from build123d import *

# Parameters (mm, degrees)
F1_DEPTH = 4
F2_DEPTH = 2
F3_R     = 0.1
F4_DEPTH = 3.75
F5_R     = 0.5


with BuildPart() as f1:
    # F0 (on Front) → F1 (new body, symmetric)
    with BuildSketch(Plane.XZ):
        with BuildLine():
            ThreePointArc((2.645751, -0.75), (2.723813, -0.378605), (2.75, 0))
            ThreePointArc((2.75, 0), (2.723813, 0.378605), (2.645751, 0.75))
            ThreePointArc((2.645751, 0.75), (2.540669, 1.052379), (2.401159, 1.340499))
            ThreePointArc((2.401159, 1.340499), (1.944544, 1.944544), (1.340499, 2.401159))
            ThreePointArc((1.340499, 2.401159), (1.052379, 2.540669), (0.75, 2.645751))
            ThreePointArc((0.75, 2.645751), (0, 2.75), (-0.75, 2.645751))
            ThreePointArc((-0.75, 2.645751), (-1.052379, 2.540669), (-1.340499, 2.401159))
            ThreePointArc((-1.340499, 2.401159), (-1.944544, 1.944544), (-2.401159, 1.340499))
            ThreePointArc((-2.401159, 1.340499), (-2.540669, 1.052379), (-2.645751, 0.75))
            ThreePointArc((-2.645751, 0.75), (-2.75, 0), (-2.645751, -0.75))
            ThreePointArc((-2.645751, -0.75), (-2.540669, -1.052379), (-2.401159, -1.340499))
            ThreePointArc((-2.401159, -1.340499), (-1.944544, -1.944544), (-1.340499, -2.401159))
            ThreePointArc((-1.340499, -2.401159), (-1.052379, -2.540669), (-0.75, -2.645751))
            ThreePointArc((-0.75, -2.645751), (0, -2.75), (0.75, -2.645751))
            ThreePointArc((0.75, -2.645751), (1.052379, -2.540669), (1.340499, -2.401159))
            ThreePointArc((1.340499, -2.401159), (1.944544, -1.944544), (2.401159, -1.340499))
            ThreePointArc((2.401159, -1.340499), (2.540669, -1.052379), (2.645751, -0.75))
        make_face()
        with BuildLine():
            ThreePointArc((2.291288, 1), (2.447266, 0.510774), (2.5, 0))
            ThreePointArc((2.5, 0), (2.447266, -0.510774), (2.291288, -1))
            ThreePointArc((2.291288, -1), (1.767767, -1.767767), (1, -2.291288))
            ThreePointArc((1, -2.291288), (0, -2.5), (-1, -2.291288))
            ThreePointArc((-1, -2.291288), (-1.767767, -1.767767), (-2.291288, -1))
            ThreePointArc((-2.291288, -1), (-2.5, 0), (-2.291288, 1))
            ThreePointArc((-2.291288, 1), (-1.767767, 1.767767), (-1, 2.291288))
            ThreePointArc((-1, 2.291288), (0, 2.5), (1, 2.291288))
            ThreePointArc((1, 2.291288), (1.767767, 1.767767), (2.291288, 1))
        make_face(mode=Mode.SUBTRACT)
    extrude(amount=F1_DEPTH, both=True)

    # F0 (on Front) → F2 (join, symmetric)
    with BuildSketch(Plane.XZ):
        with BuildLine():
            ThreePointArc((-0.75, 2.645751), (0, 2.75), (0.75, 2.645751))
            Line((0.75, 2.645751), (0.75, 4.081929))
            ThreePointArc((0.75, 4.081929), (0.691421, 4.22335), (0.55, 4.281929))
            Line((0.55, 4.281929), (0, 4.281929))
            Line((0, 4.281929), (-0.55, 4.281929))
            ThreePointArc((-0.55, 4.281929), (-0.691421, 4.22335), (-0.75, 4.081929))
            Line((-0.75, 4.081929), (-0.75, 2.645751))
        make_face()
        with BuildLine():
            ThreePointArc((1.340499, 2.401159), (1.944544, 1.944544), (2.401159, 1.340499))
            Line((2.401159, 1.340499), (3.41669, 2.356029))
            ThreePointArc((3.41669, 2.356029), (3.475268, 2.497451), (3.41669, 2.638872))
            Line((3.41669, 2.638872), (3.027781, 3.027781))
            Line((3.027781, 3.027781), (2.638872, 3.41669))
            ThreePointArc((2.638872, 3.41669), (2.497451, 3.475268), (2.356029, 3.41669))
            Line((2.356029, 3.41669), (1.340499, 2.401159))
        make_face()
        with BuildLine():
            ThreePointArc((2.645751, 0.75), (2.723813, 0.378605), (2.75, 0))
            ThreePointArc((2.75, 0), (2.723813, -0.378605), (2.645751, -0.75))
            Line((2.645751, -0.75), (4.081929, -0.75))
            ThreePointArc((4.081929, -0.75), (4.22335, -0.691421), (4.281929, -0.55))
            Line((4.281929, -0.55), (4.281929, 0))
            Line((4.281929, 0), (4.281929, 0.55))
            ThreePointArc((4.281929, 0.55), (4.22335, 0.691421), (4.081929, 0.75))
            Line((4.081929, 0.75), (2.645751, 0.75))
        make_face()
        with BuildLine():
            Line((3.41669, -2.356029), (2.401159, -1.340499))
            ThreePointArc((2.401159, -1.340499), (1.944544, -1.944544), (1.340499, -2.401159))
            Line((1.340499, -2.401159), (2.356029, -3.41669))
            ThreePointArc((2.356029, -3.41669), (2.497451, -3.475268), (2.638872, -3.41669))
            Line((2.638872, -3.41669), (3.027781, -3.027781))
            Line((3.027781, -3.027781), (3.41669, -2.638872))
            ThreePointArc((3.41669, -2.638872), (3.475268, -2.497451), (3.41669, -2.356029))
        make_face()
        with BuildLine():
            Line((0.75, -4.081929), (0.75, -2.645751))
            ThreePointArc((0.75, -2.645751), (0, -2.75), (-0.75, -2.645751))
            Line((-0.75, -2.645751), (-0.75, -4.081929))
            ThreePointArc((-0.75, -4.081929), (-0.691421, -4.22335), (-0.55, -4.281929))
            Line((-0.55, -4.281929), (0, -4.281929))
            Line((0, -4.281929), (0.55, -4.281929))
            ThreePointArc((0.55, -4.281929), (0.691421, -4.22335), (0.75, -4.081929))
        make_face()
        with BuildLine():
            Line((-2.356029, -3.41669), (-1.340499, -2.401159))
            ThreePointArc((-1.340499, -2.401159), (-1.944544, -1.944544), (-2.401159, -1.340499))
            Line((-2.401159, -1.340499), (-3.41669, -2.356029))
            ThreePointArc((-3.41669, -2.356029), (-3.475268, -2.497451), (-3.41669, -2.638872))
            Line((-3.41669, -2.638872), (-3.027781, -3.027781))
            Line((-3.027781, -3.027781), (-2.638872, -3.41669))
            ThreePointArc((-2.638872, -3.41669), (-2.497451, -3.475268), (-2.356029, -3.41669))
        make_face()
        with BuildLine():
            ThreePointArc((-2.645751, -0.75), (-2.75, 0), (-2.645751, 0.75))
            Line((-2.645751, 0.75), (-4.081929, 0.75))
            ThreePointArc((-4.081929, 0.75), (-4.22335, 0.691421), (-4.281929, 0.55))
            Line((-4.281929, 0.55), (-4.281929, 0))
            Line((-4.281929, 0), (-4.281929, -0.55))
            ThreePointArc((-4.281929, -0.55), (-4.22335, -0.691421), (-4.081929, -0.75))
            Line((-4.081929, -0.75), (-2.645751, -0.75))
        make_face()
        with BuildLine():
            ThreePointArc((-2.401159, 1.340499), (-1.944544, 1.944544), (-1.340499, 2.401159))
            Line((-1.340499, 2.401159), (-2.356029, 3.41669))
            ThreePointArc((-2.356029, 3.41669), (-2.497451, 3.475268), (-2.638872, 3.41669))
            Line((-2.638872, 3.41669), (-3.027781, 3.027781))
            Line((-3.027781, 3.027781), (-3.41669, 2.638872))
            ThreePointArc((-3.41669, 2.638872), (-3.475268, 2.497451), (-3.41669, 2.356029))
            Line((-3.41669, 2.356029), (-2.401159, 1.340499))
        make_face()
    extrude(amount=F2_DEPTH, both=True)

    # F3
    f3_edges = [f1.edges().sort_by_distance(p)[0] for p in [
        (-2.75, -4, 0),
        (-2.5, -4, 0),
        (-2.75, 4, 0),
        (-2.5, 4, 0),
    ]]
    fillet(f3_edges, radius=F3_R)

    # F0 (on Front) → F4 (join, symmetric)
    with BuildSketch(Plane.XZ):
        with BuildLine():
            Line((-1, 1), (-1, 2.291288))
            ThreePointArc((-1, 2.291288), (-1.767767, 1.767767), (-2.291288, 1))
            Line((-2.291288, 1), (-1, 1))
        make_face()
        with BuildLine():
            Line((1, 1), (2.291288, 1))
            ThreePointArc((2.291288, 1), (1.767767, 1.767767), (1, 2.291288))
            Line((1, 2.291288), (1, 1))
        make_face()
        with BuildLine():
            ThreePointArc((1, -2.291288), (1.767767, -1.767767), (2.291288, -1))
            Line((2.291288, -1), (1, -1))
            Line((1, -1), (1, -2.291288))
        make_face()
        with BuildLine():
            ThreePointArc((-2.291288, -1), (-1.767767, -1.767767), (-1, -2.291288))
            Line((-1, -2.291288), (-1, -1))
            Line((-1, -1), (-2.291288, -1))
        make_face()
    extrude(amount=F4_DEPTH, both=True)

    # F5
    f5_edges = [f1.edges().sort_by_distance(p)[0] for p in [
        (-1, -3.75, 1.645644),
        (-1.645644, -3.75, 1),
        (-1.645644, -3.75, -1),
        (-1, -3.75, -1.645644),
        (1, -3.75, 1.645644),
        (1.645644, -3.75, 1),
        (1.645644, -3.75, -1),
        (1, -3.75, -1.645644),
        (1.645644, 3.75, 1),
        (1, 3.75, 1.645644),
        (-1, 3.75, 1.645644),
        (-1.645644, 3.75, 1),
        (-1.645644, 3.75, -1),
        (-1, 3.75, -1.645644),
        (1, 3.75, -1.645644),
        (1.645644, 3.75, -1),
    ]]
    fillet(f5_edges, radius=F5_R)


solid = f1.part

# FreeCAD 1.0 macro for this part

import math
import FreeCAD as App
import Part
import Sketcher
Q = App.Units.Quantity


def edges_at(feature, points):
    """Names of the edges that pass closest to the given points."""
    edges = feature.Shape.Edges
    near = lambda p: min(range(len(edges)), key=lambda i: edges[i].distToShape(Part.Vertex(*p))[0])
    return sorted({f"Edge{near(p) + 1}" for p in points})

doc = App.newDocument("Part")
body = doc.addObject("PartDesign::Body", "Body")

sketch1 = body.newObject("Sketcher::SketchObject", "Sketch")
sketch1.AttachmentSupport = (doc.getObject("XZ_Plane"), [""])
sketch1.MapMode = "FlatFace"
sketch1.addGeometry(Part.ArcOfCircle(Part.Circle(App.Vector(0, 0, 0), App.Vector(0, 0, 1), 2.8), math.radians(-15.83), math.radians(0)), False)
sketch1.addGeometry(Part.ArcOfCircle(Part.Circle(App.Vector(0, 0, 0), App.Vector(0, 0, 1), 2.8), math.radians(0), math.radians(15.83)), False)
sketch1.addGeometry(Part.ArcOfCircle(Part.Circle(App.Vector(0, 0, 0), App.Vector(0, 0, 1), 2.7), math.radians(15.83), math.radians(29.17)), False)
sketch1.addGeometry(Part.ArcOfCircle(Part.Circle(App.Vector(0, 0, 0), App.Vector(0, 0, 1), 2.7), math.radians(29), math.radians(61)), False)
sketch1.addGeometry(Part.ArcOfCircle(Part.Circle(App.Vector(0, 0, 0), App.Vector(0, 0, 1), 2.7), math.radians(60.83), math.radians(74.17)), False)
sketch1.addGeometry(Part.ArcOfCircle(Part.Circle(App.Vector(0, 0, 0), App.Vector(0, 0, 1), 2.7), math.radians(74), math.radians(106)), False)
sketch1.addGeometry(Part.ArcOfCircle(Part.Circle(App.Vector(0, 0, 0), App.Vector(0, 0, 1), 2.7), math.radians(105.83), math.radians(119.17)), False)
sketch1.addGeometry(Part.ArcOfCircle(Part.Circle(App.Vector(0, 0, 0), App.Vector(0, 0, 1), 2.7), math.radians(119), math.radians(151)), False)
sketch1.addGeometry(Part.ArcOfCircle(Part.Circle(App.Vector(0, 0, 0), App.Vector(0, 0, 1), 2.7), math.radians(150.83), math.radians(164.17)), False)
sketch1.addGeometry(Part.ArcOfCircle(Part.Circle(App.Vector(0, 0, 0), App.Vector(0, 0, 1), 2.7), math.radians(164), math.radians(196)), False)
sketch1.addGeometry(Part.ArcOfCircle(Part.Circle(App.Vector(0, 0, 0), App.Vector(0, 0, 1), 2.7), math.radians(-164.17), math.radians(-150.83)), False)
sketch1.addGeometry(Part.ArcOfCircle(Part.Circle(App.Vector(0, 0, 0), App.Vector(0, 0, 1), 2.7), math.radians(-151), math.radians(-119)), False)
sketch1.addGeometry(Part.ArcOfCircle(Part.Circle(App.Vector(0, 0, 0), App.Vector(0, 0, 1), 2.7), math.radians(-119.17), math.radians(-105.83)), False)
sketch1.addGeometry(Part.ArcOfCircle(Part.Circle(App.Vector(0, 0, 0), App.Vector(0, 0, 1), 2.7), math.radians(-106), math.radians(-74)), False)
sketch1.addGeometry(Part.ArcOfCircle(Part.Circle(App.Vector(0, 0, 0), App.Vector(0, 0, 1), 2.7), math.radians(-74.17), math.radians(-60.83)), False)
sketch1.addGeometry(Part.ArcOfCircle(Part.Circle(App.Vector(0, 0, 0), App.Vector(0, 0, 1), 2.7), math.radians(-61), math.radians(-29)), False)
sketch1.addGeometry(Part.ArcOfCircle(Part.Circle(App.Vector(0, 0, 0), App.Vector(0, 0, 1), 2.7), math.radians(-29.17), math.radians(-15.83)), False)
sketch1.addGeometry(Part.ArcOfCircle(Part.Circle(App.Vector(0, 0, 0), App.Vector(0, 0, 1), 2.5), math.radians(24), math.radians(66)), False)
sketch1.addGeometry(Part.ArcOfCircle(Part.Circle(App.Vector(0, 0, 0), App.Vector(0, 0, 1), 2.5), math.radians(0), math.radians(24)), False)
sketch1.addGeometry(Part.ArcOfCircle(Part.Circle(App.Vector(0, 0, 0), App.Vector(0, 0, 1), 2.5), math.radians(-24), math.radians(0)), False)
sketch1.addGeometry(Part.ArcOfCircle(Part.Circle(App.Vector(0, 0, 0), App.Vector(0, 0, 1), 2.5), math.radians(-66), math.radians(-24)), False)
sketch1.addGeometry(Part.ArcOfCircle(Part.Circle(App.Vector(0, 0, 0), App.Vector(0, 0, 1), 2.5), math.radians(-114), math.radians(-66)), False)
sketch1.addGeometry(Part.ArcOfCircle(Part.Circle(App.Vector(0, 0, 0), App.Vector(0, 0, 1), 2.5), math.radians(-156), math.radians(-114)), False)
sketch1.addGeometry(Part.ArcOfCircle(Part.Circle(App.Vector(0, 0, 0), App.Vector(0, 0, 1), 2.5), math.radians(156), math.radians(204)), False)
sketch1.addGeometry(Part.ArcOfCircle(Part.Circle(App.Vector(0, 0, 0), App.Vector(0, 0, 1), 2.5), math.radians(114), math.radians(156)), False)
sketch1.addGeometry(Part.ArcOfCircle(Part.Circle(App.Vector(0, 0, 0), App.Vector(0, 0, 1), 2.5), math.radians(66), math.radians(114)), False)
sketch1.addConstraint(Sketcher.Constraint("Tangent", 0, 2, 1, 1))
sketch1.addConstraint(Sketcher.Constraint("Tangent", 1, 2, 2, 1))
sketch1.addConstraint(Sketcher.Constraint("Tangent", 2, 2, 3, 1))
sketch1.addConstraint(Sketcher.Constraint("Tangent", 3, 2, 4, 1))
sketch1.addConstraint(Sketcher.Constraint("Coincident", 4, 2, 5, 1))
sketch1.addConstraint(Sketcher.Constraint("Coincident", 5, 2, 6, 1))
sketch1.addConstraint(Sketcher.Constraint("Tangent", 6, 2, 7, 1))
sketch1.addConstraint(Sketcher.Constraint("Tangent", 7, 2, 8, 1))
sketch1.addConstraint(Sketcher.Constraint("Coincident", 8, 2, 9, 1))
sketch1.addConstraint(Sketcher.Constraint("Coincident", 9, 2, 10, 1))
sketch1.addConstraint(Sketcher.Constraint("Tangent", 10, 2, 11, 1))
sketch1.addConstraint(Sketcher.Constraint("Tangent", 11, 2, 12, 1))
sketch1.addConstraint(Sketcher.Constraint("Coincident", 12, 2, 13, 1))
sketch1.addConstraint(Sketcher.Constraint("Coincident", 13, 2, 14, 1))
sketch1.addConstraint(Sketcher.Constraint("Tangent", 14, 2, 15, 1))
sketch1.addConstraint(Sketcher.Constraint("Tangent", 15, 2, 16, 1))
sketch1.addConstraint(Sketcher.Constraint("Tangent", 16, 2, 0, 1))
sketch1.addConstraint(Sketcher.Constraint("Tangent", 17, 1, 18, 2))
sketch1.addConstraint(Sketcher.Constraint("Tangent", 18, 1, 19, 2))
sketch1.addConstraint(Sketcher.Constraint("Tangent", 19, 1, 20, 2))
sketch1.addConstraint(Sketcher.Constraint("Tangent", 20, 1, 21, 2))
sketch1.addConstraint(Sketcher.Constraint("Tangent", 21, 1, 22, 2))
sketch1.addConstraint(Sketcher.Constraint("Tangent", 22, 1, 23, 2))
sketch1.addConstraint(Sketcher.Constraint("Tangent", 23, 1, 24, 2))
sketch1.addConstraint(Sketcher.Constraint("Tangent", 24, 1, 25, 2))
sketch1.addConstraint(Sketcher.Constraint("Tangent", 25, 1, 17, 2))
sketch1.addConstraint(Sketcher.Constraint("Coincident", 0, 3, -1, 1))
sketch1.addConstraint(Sketcher.Constraint("Coincident", 2, 3, -1, 1))
sketch1.addConstraint(Sketcher.Constraint("Coincident", 4, 3, -1, 1))
sketch1.addConstraint(Sketcher.Constraint("Coincident", 5, 3, -1, 1))
sketch1.addConstraint(Sketcher.Constraint("Coincident", 6, 3, -1, 1))
sketch1.addConstraint(Sketcher.Constraint("Coincident", 8, 3, -1, 1))
sketch1.addConstraint(Sketcher.Constraint("Coincident", 9, 3, -1, 1))
sketch1.addConstraint(Sketcher.Constraint("Coincident", 10, 3, -1, 1))
sketch1.addConstraint(Sketcher.Constraint("Coincident", 12, 3, -1, 1))
sketch1.addConstraint(Sketcher.Constraint("Coincident", 13, 3, -1, 1))
sketch1.addConstraint(Sketcher.Constraint("Coincident", 14, 3, -1, 1))
sketch1.addConstraint(Sketcher.Constraint("Coincident", 17, 3, -1, 1))
sketch1.addConstraint(Sketcher.Constraint("Coincident", 19, 3, -1, 1))
sketch1.addConstraint(Sketcher.Constraint("Coincident", 21, 3, -1, 1))
sketch1.addConstraint(Sketcher.Constraint("Coincident", 23, 3, -1, 1))
sketch1.addConstraint(Sketcher.Constraint("PointOnObject", 0, 2, -1))
sketch1.addConstraint(Sketcher.Constraint("PointOnObject", 18, 1, -1))
sketch1.addConstraint(Sketcher.Constraint("Horizontal", 4, 2, 5, 2))
sketch1.addConstraint(Sketcher.Constraint("Horizontal", 3, 2, 6, 2))
sketch1.addConstraint(Sketcher.Constraint("Horizontal", 2, 2, 7, 2))
sketch1.addConstraint(Sketcher.Constraint("Horizontal", 1, 2, 8, 2))
sketch1.addConstraint(Sketcher.Constraint("Horizontal", 12, 2, 13, 2))
sketch1.addConstraint(Sketcher.Constraint("Horizontal", 11, 2, 14, 2))
sketch1.addConstraint(Sketcher.Constraint("Horizontal", 10, 2, 15, 2))
sketch1.addConstraint(Sketcher.Constraint("Horizontal", 9, 2, 16, 2))
sketch1.addConstraint(Sketcher.Constraint("Horizontal", 20, 1, 21, 1))
sketch1.addConstraint(Sketcher.Constraint("Horizontal", 19, 1, 22, 1))
sketch1.addConstraint(Sketcher.Constraint("Horizontal", 17, 1, 23, 1))
sketch1.addConstraint(Sketcher.Constraint("Horizontal", 24, 1, 25, 1))
sketch1.addConstraint(Sketcher.Constraint("Vertical", 8, 2, 9, 2))
sketch1.addConstraint(Sketcher.Constraint("Vertical", 7, 2, 10, 2))
sketch1.addConstraint(Sketcher.Constraint("Vertical", 6, 2, 11, 2))
sketch1.addConstraint(Sketcher.Constraint("Vertical", 5, 2, 12, 2))
sketch1.addConstraint(Sketcher.Constraint("Vertical", 17, 1, 19, 1))
sketch1.addConstraint(Sketcher.Constraint("Vertical", 21, 1, 24, 1))
sketch1.addConstraint(Sketcher.Constraint("Radius", 17, Q("2.500001 mm")))
sketch1.addConstraint(Sketcher.Constraint("DistanceY", -1, 1, 17, 1, Q("1 mm")))
sketch1.addConstraint(Sketcher.Constraint("DistanceX", -1, 1, 20, 1, Q("1 mm")))
sketch1.addConstraint(Sketcher.Constraint("DistanceX", 5, 2, 4, 2, Q("1.5 mm")))
sketch1.addConstraint(Sketcher.Constraint("DistanceY", 9, 2, 8, 2, Q("1.5 mm")))
sketch1.addConstraint(Sketcher.Constraint("DistanceX", -1, 1, 0, 2, Q("2.75 mm")))
sketch1.addConstraint(Sketcher.Constraint("DistanceX", 6, 2, 3, 2, Q("2.680998 mm")))
sketch1.addConstraint(Sketcher.Constraint("DistanceY", 10, 2, 7, 2, Q("2.680998 mm")))
pad1 = body.newObject("PartDesign::Pad", "Pad")
pad1.Profile = sketch1
pad1.Length = 8
pad1.Midplane = True

sketch2 = body.newObject("Sketcher::SketchObject", "Sketch001")
sketch2.AttachmentSupport = (doc.getObject("XZ_Plane"), [""])
sketch2.MapMode = "FlatFace"
sketch2.addGeometry(Part.ArcOfCircle(Part.Circle(App.Vector(0, 0, 0), App.Vector(0, 0, 1), 2.75), math.radians(74), math.radians(106)), False)
sketch2.addGeometry(Part.LineSegment(App.Vector(0.75, 2.65, 0), App.Vector(0.75, 4.08, 0)), False)
sketch2.addGeometry(Part.ArcOfCircle(Part.Circle(App.Vector(0.55, 4.08, 0), App.Vector(0, 0, 1), 0.2), math.radians(0), math.radians(90)), False)
sketch2.addGeometry(Part.LineSegment(App.Vector(0.55, 4.28, 0), App.Vector(-0.55, 4.28, 0)), False)
sketch2.addGeometry(Part.ArcOfCircle(Part.Circle(App.Vector(-0.55, 4.08, 0), App.Vector(0, 0, 1), 0.2), math.radians(90), math.radians(180)), False)
sketch2.addGeometry(Part.LineSegment(App.Vector(-0.75, 4.08, 0), App.Vector(-0.75, 2.65, 0)), False)
sketch2.addGeometry(Part.ArcOfCircle(Part.Circle(App.Vector(0, 0, 0), App.Vector(0, 0, 1), 2.75), math.radians(29), math.radians(61)), False)
sketch2.addGeometry(Part.LineSegment(App.Vector(2.4, 1.34, 0), App.Vector(3.42, 2.36, 0)), False)
sketch2.addGeometry(Part.ArcOfCircle(Part.Circle(App.Vector(3.28, 2.5, 0), App.Vector(0, 0, 1), 0.2), math.radians(-45), math.radians(45)), False)
sketch2.addGeometry(Part.LineSegment(App.Vector(3.42, 2.64, 0), App.Vector(2.64, 3.42, 0)), False)
sketch2.addGeometry(Part.ArcOfCircle(Part.Circle(App.Vector(2.5, 3.28, 0), App.Vector(0, 0, 1), 0.2), math.radians(45), math.radians(135)), False)
sketch2.addGeometry(Part.LineSegment(App.Vector(2.36, 3.42, 0), App.Vector(1.34, 2.4, 0)), False)
sketch2.addGeometry(Part.ArcOfCircle(Part.Circle(App.Vector(0, 0, 0), App.Vector(0, 0, 1), 2.75), math.radians(0), math.radians(15.83)), False)
sketch2.addGeometry(Part.ArcOfCircle(Part.Circle(App.Vector(0, 0, 0), App.Vector(0, 0, 1), 2.75), math.radians(-15.83), math.radians(0)), False)
sketch2.addGeometry(Part.LineSegment(App.Vector(2.65, -0.75, 0), App.Vector(4.08, -0.75, 0)), False)
sketch2.addGeometry(Part.ArcOfCircle(Part.Circle(App.Vector(4.08, -0.55, 0), App.Vector(0, 0, 1), 0.2), math.radians(-90), math.radians(0)), False)
sketch2.addGeometry(Part.LineSegment(App.Vector(4.28, -0.55, 0), App.Vector(4.28, 0.55, 0)), False)
sketch2.addGeometry(Part.ArcOfCircle(Part.Circle(App.Vector(4.08, 0.55, 0), App.Vector(0, 0, 1), 0.2), math.radians(0), math.radians(90)), False)
sketch2.addGeometry(Part.LineSegment(App.Vector(4.08, 0.75, 0), App.Vector(2.65, 0.75, 0)), False)
sketch2.addGeometry(Part.LineSegment(App.Vector(3.42, -2.36, 0), App.Vector(2.4, -1.34, 0)), False)
sketch2.addGeometry(Part.ArcOfCircle(Part.Circle(App.Vector(0, 0, 0), App.Vector(0, 0, 1), 2.75), math.radians(-61), math.radians(-29)), False)
sketch2.addGeometry(Part.LineSegment(App.Vector(1.34, -2.4, 0), App.Vector(2.36, -3.42, 0)), False)
sketch2.addGeometry(Part.ArcOfCircle(Part.Circle(App.Vector(2.5, -3.28, 0), App.Vector(0, 0, 1), 0.2), math.radians(-135), math.radians(-45)), False)
sketch2.addGeometry(Part.LineSegment(App.Vector(2.64, -3.42, 0), App.Vector(3.42, -2.64, 0)), False)
sketch2.addGeometry(Part.ArcOfCircle(Part.Circle(App.Vector(3.28, -2.5, 0), App.Vector(0, 0, 1), 0.2), math.radians(-45), math.radians(45)), False)
sketch2.addGeometry(Part.LineSegment(App.Vector(0.75, -4.08, 0), App.Vector(0.75, -2.65, 0)), False)
sketch2.addGeometry(Part.ArcOfCircle(Part.Circle(App.Vector(0, 0, 0), App.Vector(0, 0, 1), 2.75), math.radians(-106), math.radians(-74)), False)
sketch2.addGeometry(Part.LineSegment(App.Vector(-0.75, -2.65, 0), App.Vector(-0.75, -4.08, 0)), False)
sketch2.addGeometry(Part.ArcOfCircle(Part.Circle(App.Vector(-0.55, -4.08, 0), App.Vector(0, 0, 1), 0.2), math.radians(-180), math.radians(-90)), False)
sketch2.addGeometry(Part.LineSegment(App.Vector(-0.55, -4.28, 0), App.Vector(0.55, -4.28, 0)), False)
sketch2.addGeometry(Part.ArcOfCircle(Part.Circle(App.Vector(0.55, -4.08, 0), App.Vector(0, 0, 1), 0.2), math.radians(-90), math.radians(0)), False)
sketch2.addGeometry(Part.LineSegment(App.Vector(-2.36, -3.42, 0), App.Vector(-1.34, -2.4, 0)), False)
sketch2.addGeometry(Part.ArcOfCircle(Part.Circle(App.Vector(0, 0, 0), App.Vector(0, 0, 1), 2.75), math.radians(-151), math.radians(-119)), False)
sketch2.addGeometry(Part.LineSegment(App.Vector(-2.4, -1.34, 0), App.Vector(-3.42, -2.36, 0)), False)
sketch2.addGeometry(Part.ArcOfCircle(Part.Circle(App.Vector(-3.28, -2.5, 0), App.Vector(0, 0, 1), 0.2), math.radians(135), math.radians(225)), False)
sketch2.addGeometry(Part.LineSegment(App.Vector(-3.42, -2.64, 0), App.Vector(-2.64, -3.42, 0)), False)
sketch2.addGeometry(Part.ArcOfCircle(Part.Circle(App.Vector(-2.5, -3.28, 0), App.Vector(0, 0, 1), 0.2), math.radians(-135), math.radians(-45)), False)
sketch2.addGeometry(Part.ArcOfCircle(Part.Circle(App.Vector(0, 0, 0), App.Vector(0, 0, 1), 2.75), math.radians(164), math.radians(196)), False)
sketch2.addGeometry(Part.LineSegment(App.Vector(-2.65, 0.75, 0), App.Vector(-4.08, 0.75, 0)), False)
sketch2.addGeometry(Part.ArcOfCircle(Part.Circle(App.Vector(-4.08, 0.55, 0), App.Vector(0, 0, 1), 0.2), math.radians(90), math.radians(180)), False)
sketch2.addGeometry(Part.LineSegment(App.Vector(-4.28, 0.55, 0), App.Vector(-4.28, -0.55, 0)), False)
sketch2.addGeometry(Part.ArcOfCircle(Part.Circle(App.Vector(-4.08, -0.55, 0), App.Vector(0, 0, 1), 0.2), math.radians(-180), math.radians(-90)), False)
sketch2.addGeometry(Part.LineSegment(App.Vector(-4.08, -0.75, 0), App.Vector(-2.65, -0.75, 0)), False)
sketch2.addGeometry(Part.ArcOfCircle(Part.Circle(App.Vector(0, 0, 0), App.Vector(0, 0, 1), 2.75), math.radians(119), math.radians(151)), False)
sketch2.addGeometry(Part.LineSegment(App.Vector(-1.34, 2.4, 0), App.Vector(-2.36, 3.42, 0)), False)
sketch2.addGeometry(Part.ArcOfCircle(Part.Circle(App.Vector(-2.5, 3.28, 0), App.Vector(0, 0, 1), 0.2), math.radians(45), math.radians(135)), False)
sketch2.addGeometry(Part.LineSegment(App.Vector(-2.64, 3.42, 0), App.Vector(-3.42, 2.64, 0)), False)
sketch2.addGeometry(Part.ArcOfCircle(Part.Circle(App.Vector(-3.28, 2.5, 0), App.Vector(0, 0, 1), 0.2), math.radians(135), math.radians(225)), False)
sketch2.addGeometry(Part.LineSegment(App.Vector(-3.42, 2.36, 0), App.Vector(-2.4, 1.34, 0)), False)
sketch2.addConstraint(Sketcher.Constraint("Coincident", 0, 1, 1, 1))
sketch2.addConstraint(Sketcher.Constraint("Coincident", 1, 2, 2, 1))
sketch2.addConstraint(Sketcher.Constraint("Coincident", 2, 2, 3, 1))
sketch2.addConstraint(Sketcher.Constraint("Coincident", 3, 2, 4, 1))
sketch2.addConstraint(Sketcher.Constraint("Coincident", 4, 2, 5, 1))
sketch2.addConstraint(Sketcher.Constraint("Coincident", 5, 2, 0, 2))
sketch2.addConstraint(Sketcher.Constraint("Coincident", 6, 1, 7, 1))
sketch2.addConstraint(Sketcher.Constraint("Coincident", 7, 2, 8, 1))
sketch2.addConstraint(Sketcher.Constraint("Coincident", 8, 2, 9, 1))
sketch2.addConstraint(Sketcher.Constraint("Coincident", 9, 2, 10, 1))
sketch2.addConstraint(Sketcher.Constraint("Coincident", 10, 2, 11, 1))
sketch2.addConstraint(Sketcher.Constraint("Coincident", 11, 2, 6, 2))
sketch2.addConstraint(Sketcher.Constraint("Tangent", 12, 1, 13, 2))
sketch2.addConstraint(Sketcher.Constraint("Coincident", 13, 1, 14, 1))
sketch2.addConstraint(Sketcher.Constraint("Coincident", 14, 2, 15, 1))
sketch2.addConstraint(Sketcher.Constraint("Coincident", 15, 2, 16, 1))
sketch2.addConstraint(Sketcher.Constraint("Coincident", 16, 2, 17, 1))
sketch2.addConstraint(Sketcher.Constraint("Coincident", 17, 2, 18, 1))
sketch2.addConstraint(Sketcher.Constraint("Coincident", 18, 2, 12, 2))
sketch2.addConstraint(Sketcher.Constraint("Coincident", 19, 2, 20, 2))
sketch2.addConstraint(Sketcher.Constraint("Coincident", 20, 1, 21, 1))
sketch2.addConstraint(Sketcher.Constraint("Coincident", 21, 2, 22, 1))
sketch2.addConstraint(Sketcher.Constraint("Coincident", 22, 2, 23, 1))
sketch2.addConstraint(Sketcher.Constraint("Coincident", 23, 2, 24, 1))
sketch2.addConstraint(Sketcher.Constraint("Coincident", 24, 2, 19, 1))
sketch2.addConstraint(Sketcher.Constraint("Coincident", 25, 2, 26, 2))
sketch2.addConstraint(Sketcher.Constraint("Coincident", 26, 1, 27, 1))
sketch2.addConstraint(Sketcher.Constraint("Coincident", 27, 2, 28, 1))
sketch2.addConstraint(Sketcher.Constraint("Coincident", 28, 2, 29, 1))
sketch2.addConstraint(Sketcher.Constraint("Coincident", 29, 2, 30, 1))
sketch2.addConstraint(Sketcher.Constraint("Coincident", 30, 2, 25, 1))
sketch2.addConstraint(Sketcher.Constraint("Coincident", 31, 2, 32, 2))
sketch2.addConstraint(Sketcher.Constraint("Coincident", 32, 1, 33, 1))
sketch2.addConstraint(Sketcher.Constraint("Coincident", 33, 2, 34, 1))
sketch2.addConstraint(Sketcher.Constraint("Coincident", 34, 2, 35, 1))
sketch2.addConstraint(Sketcher.Constraint("Coincident", 35, 2, 36, 1))
sketch2.addConstraint(Sketcher.Constraint("Coincident", 36, 2, 31, 1))
sketch2.addConstraint(Sketcher.Constraint("Coincident", 37, 1, 38, 1))
sketch2.addConstraint(Sketcher.Constraint("Coincident", 38, 2, 39, 1))
sketch2.addConstraint(Sketcher.Constraint("Coincident", 39, 2, 40, 1))
sketch2.addConstraint(Sketcher.Constraint("Coincident", 40, 2, 41, 1))
sketch2.addConstraint(Sketcher.Constraint("Coincident", 41, 2, 42, 1))
sketch2.addConstraint(Sketcher.Constraint("Coincident", 42, 2, 37, 2))
sketch2.addConstraint(Sketcher.Constraint("Coincident", 43, 1, 44, 1))
sketch2.addConstraint(Sketcher.Constraint("Coincident", 44, 2, 45, 1))
sketch2.addConstraint(Sketcher.Constraint("Coincident", 45, 2, 46, 1))
sketch2.addConstraint(Sketcher.Constraint("Coincident", 46, 2, 47, 1))
sketch2.addConstraint(Sketcher.Constraint("Coincident", 47, 2, 48, 1))
sketch2.addConstraint(Sketcher.Constraint("Coincident", 48, 2, 43, 2))
sketch2.addConstraint(Sketcher.Constraint("Vertical", 1))
sketch2.addConstraint(Sketcher.Constraint("Horizontal", 3))
sketch2.addConstraint(Sketcher.Constraint("Vertical", 5))
sketch2.addConstraint(Sketcher.Constraint("Horizontal", 14))
sketch2.addConstraint(Sketcher.Constraint("Vertical", 16))
sketch2.addConstraint(Sketcher.Constraint("Horizontal", 18))
sketch2.addConstraint(Sketcher.Constraint("Vertical", 25))
sketch2.addConstraint(Sketcher.Constraint("Vertical", 27))
sketch2.addConstraint(Sketcher.Constraint("Horizontal", 29))
sketch2.addConstraint(Sketcher.Constraint("Horizontal", 38))
sketch2.addConstraint(Sketcher.Constraint("Vertical", 40))
sketch2.addConstraint(Sketcher.Constraint("Horizontal", 42))
sketch2.addConstraint(Sketcher.Constraint("Coincident", 0, 3, -1, 1))
sketch2.addConstraint(Sketcher.Constraint("Coincident", 6, 3, -1, 1))
sketch2.addConstraint(Sketcher.Constraint("Coincident", 12, 3, -1, 1))
sketch2.addConstraint(Sketcher.Constraint("Coincident", 20, 3, -1, 1))
sketch2.addConstraint(Sketcher.Constraint("Coincident", 26, 3, -1, 1))
sketch2.addConstraint(Sketcher.Constraint("Coincident", 32, 3, -1, 1))
sketch2.addConstraint(Sketcher.Constraint("Coincident", 37, 3, -1, 1))
sketch2.addConstraint(Sketcher.Constraint("Coincident", 43, 3, -1, 1))
sketch2.addConstraint(Sketcher.Constraint("Equal", 2, 4))
sketch2.addConstraint(Sketcher.Constraint("Equal", 4, 8))
sketch2.addConstraint(Sketcher.Constraint("Equal", 8, 10))
sketch2.addConstraint(Sketcher.Constraint("Equal", 12, 13))
sketch2.addConstraint(Sketcher.Constraint("Equal", 10, 15))
sketch2.addConstraint(Sketcher.Constraint("Equal", 15, 17))
sketch2.addConstraint(Sketcher.Constraint("Equal", 6, 20))
sketch2.addConstraint(Sketcher.Constraint("Equal", 17, 22))
sketch2.addConstraint(Sketcher.Constraint("Equal", 22, 24))
sketch2.addConstraint(Sketcher.Constraint("Equal", 0, 26))
sketch2.addConstraint(Sketcher.Constraint("Equal", 24, 28))
sketch2.addConstraint(Sketcher.Constraint("Equal", 28, 30))
sketch2.addConstraint(Sketcher.Constraint("Equal", 20, 32))
sketch2.addConstraint(Sketcher.Constraint("Equal", 30, 34))
sketch2.addConstraint(Sketcher.Constraint("Equal", 34, 36))
sketch2.addConstraint(Sketcher.Constraint("Equal", 26, 37))
sketch2.addConstraint(Sketcher.Constraint("Equal", 36, 39))
sketch2.addConstraint(Sketcher.Constraint("Equal", 39, 41))
sketch2.addConstraint(Sketcher.Constraint("Equal", 32, 43))
sketch2.addConstraint(Sketcher.Constraint("Equal", 41, 45))
sketch2.addConstraint(Sketcher.Constraint("Equal", 45, 47))
sketch2.addConstraint(Sketcher.Constraint("Symmetric", 2, 3, 28, 3, -1, 1))
sketch2.addConstraint(Sketcher.Constraint("Symmetric", 8, 3, 34, 3, -1, 1))
sketch2.addConstraint(Sketcher.Constraint("Symmetric", 10, 3, 36, 3, -1, 1))
sketch2.addConstraint(Sketcher.Constraint("Symmetric", 15, 3, 39, 3, -1, 1))
sketch2.addConstraint(Sketcher.Constraint("Symmetric", 22, 3, 45, 3, -1, 1))
sketch2.addConstraint(Sketcher.Constraint("Symmetric", 24, 3, 47, 3, -1, 1))
sketch2.addConstraint(Sketcher.Constraint("Symmetric", 4, 2, 30, 2, -1, 1))
sketch2.addConstraint(Sketcher.Constraint("Symmetric", 17, 2, 41, 2, -1, 1))
sketch2.addConstraint(Sketcher.Constraint("Symmetric", 24, 3, 34, 3, -2))
sketch2.addConstraint(Sketcher.Constraint("Symmetric", 22, 3, 36, 3, -2))
sketch2.addConstraint(Sketcher.Constraint("Symmetric", 1, 2, 4, 2, -2))
sketch2.addConstraint(Sketcher.Constraint("Symmetric", 18, 2, 37, 1, -2))
sketch2.addConstraint(Sketcher.Constraint("PointOnObject", 12, 1, -1))
sketch2.addConstraint(Sketcher.Constraint("Perpendicular", 7, 9))
sketch2.addConstraint(Sketcher.Constraint("Perpendicular", 9, 11))
sketch2.addConstraint(Sketcher.Constraint("Perpendicular", 11, 19))
sketch2.addConstraint(Sketcher.Constraint("Parallel", 19, 21))
sketch2.addConstraint(Sketcher.Constraint("Perpendicular", 21, 23))
sketch2.addConstraint(Sketcher.Constraint("Parallel", 23, 31))
sketch2.addConstraint(Sketcher.Constraint("Parallel", 31, 33))
sketch2.addConstraint(Sketcher.Constraint("Parallel", 35, 44))
sketch2.addConstraint(Sketcher.Constraint("Perpendicular", 46, 48))
sketch2.addConstraint(Sketcher.Constraint("Horizontal", 4, 3, 1, 2))
sketch2.addConstraint(Sketcher.Constraint("Horizontal", 9, 2, 10, 2))
sketch2.addConstraint(Sketcher.Constraint("Horizontal", 41, 3, 15, 2))
sketch2.addConstraint(Sketcher.Constraint("Horizontal", 39, 3, 16, 2))
sketch2.addConstraint(Sketcher.Constraint("Horizontal", 21, 2, 22, 2))
sketch2.addConstraint(Sketcher.Constraint("Horizontal", 30, 3, 27, 2))
sketch2.addConstraint(Sketcher.Constraint("Horizontal", 24, 2, 33, 2))
sketch2.addConstraint(Sketcher.Constraint("Horizontal", 23, 2, 34, 2))
sketch2.addConstraint(Sketcher.Constraint("Horizontal", 22, 2, 35, 2))
sketch2.addConstraint(Sketcher.Constraint("Horizontal", 35, 2, 36, 2))
sketch2.addConstraint(Sketcher.Constraint("Horizontal", 16, 2, 39, 2))
sketch2.addConstraint(Sketcher.Constraint("Horizontal", 15, 2, 40, 2))
sketch2.addConstraint(Sketcher.Constraint("Horizontal", 10, 2, 44, 2))
sketch2.addConstraint(Sketcher.Constraint("Horizontal", 44, 2, 45, 2))
sketch2.addConstraint(Sketcher.Constraint("Horizontal", 8, 2, 46, 2))
sketch2.addConstraint(Sketcher.Constraint("Horizontal", 7, 2, 47, 2))
sketch2.addConstraint(Sketcher.Constraint("Vertical", 30, 3, 2, 2))
sketch2.addConstraint(Sketcher.Constraint("Vertical", 28, 3, 3, 2))
sketch2.addConstraint(Sketcher.Constraint("Vertical", 7, 2, 8, 2))
sketch2.addConstraint(Sketcher.Constraint("Vertical", 17, 3, 14, 2))
sketch2.addConstraint(Sketcher.Constraint("Vertical", 14, 2, 17, 2))
sketch2.addConstraint(Sketcher.Constraint("Vertical", 10, 2, 21, 2))
sketch2.addConstraint(Sketcher.Constraint("Vertical", 8, 2, 23, 2))
sketch2.addConstraint(Sketcher.Constraint("Vertical", 23, 2, 24, 2))
sketch2.addConstraint(Sketcher.Constraint("Vertical", 3, 2, 28, 2))
sketch2.addConstraint(Sketcher.Constraint("Vertical", 2, 2, 29, 2))
sketch2.addConstraint(Sketcher.Constraint("Vertical", 41, 3, 38, 2))
sketch2.addConstraint(Sketcher.Constraint("Equal", 42, 1))
sketch2.addConstraint(Sketcher.Constraint("Equal", 29, 16))
sketch2.addConstraint(Sketcher.Constraint("Equal", 7, 11))
sketch2.addConstraint(Sketcher.Constraint("Radius", 2, Q("0.200001 mm")))
sketch2.addConstraint(Sketcher.Constraint("DistanceX", 3, 2, 3, 1, Q("1.1 mm")))
sketch2.addConstraint(Sketcher.Constraint("Distance", 9, Q("1.100001 mm")))
sketch2.addConstraint(Sketcher.Constraint("DistanceX", -1, 1, 12, 1, Q("2.75 mm")))
sketch2.addConstraint(Sketcher.Constraint("Radius", 6, Q("2.749998 mm")))
sketch2.addConstraint(Sketcher.Constraint("DistanceY", -1, 1, 6, 1, Q("1.340499 mm")))
sketch2.addConstraint(Sketcher.Constraint("DistanceX", -1, 1, 11, 2, Q("1.340499 mm")))
sketch2.addConstraint(Sketcher.Constraint("DistanceX", 14, 1, 14, 2, Q("1.436178 mm")))
sketch2.addConstraint(Sketcher.Constraint("DistanceY", -1, 1, 8, 3, Q("2.49745 mm")))
pad2 = body.newObject("PartDesign::Pad", "Pad001")
pad2.Profile = sketch2
pad2.Length = 4
pad2.Midplane = True
doc.recompute()

fillet = body.newObject("PartDesign::Fillet", "Fillet")
fillet.Base = (pad2, edges_at(pad2, [
    (-2.75, -4, 0),
    (-2.5, -4, 0),
    (-2.75, 4, 0),
    (-2.5, 4, 0),
]))
fillet.Radius = 0.1

sketch3 = body.newObject("Sketcher::SketchObject", "Sketch002")
sketch3.AttachmentSupport = (doc.getObject("XZ_Plane"), [""])
sketch3.MapMode = "FlatFace"
sketch3.addGeometry(Part.LineSegment(App.Vector(-1, 1, 0), App.Vector(-1, 2.3, 0)), False)
sketch3.addGeometry(Part.ArcOfCircle(Part.Circle(App.Vector(0, 0, 0), App.Vector(0, 0, 1), 2.5), math.radians(114), math.radians(156)), False)
sketch3.addGeometry(Part.LineSegment(App.Vector(-2.3, 1, 0), App.Vector(-1, 1, 0)), False)
sketch3.addGeometry(Part.LineSegment(App.Vector(1, 1, 0), App.Vector(2.3, 1, 0)), False)
sketch3.addGeometry(Part.ArcOfCircle(Part.Circle(App.Vector(0, 0, 0), App.Vector(0, 0, 1), 2.5), math.radians(24), math.radians(66)), False)
sketch3.addGeometry(Part.LineSegment(App.Vector(1, 2.3, 0), App.Vector(1, 1, 0)), False)
sketch3.addGeometry(Part.ArcOfCircle(Part.Circle(App.Vector(0, 0, 0), App.Vector(0, 0, 1), 2.5), math.radians(-66), math.radians(-24)), False)
sketch3.addGeometry(Part.LineSegment(App.Vector(2.3, -1, 0), App.Vector(1, -1, 0)), False)
sketch3.addGeometry(Part.LineSegment(App.Vector(1, -1, 0), App.Vector(1, -2.3, 0)), False)
sketch3.addGeometry(Part.ArcOfCircle(Part.Circle(App.Vector(0, 0, 0), App.Vector(0, 0, 1), 2.5), math.radians(-156), math.radians(-114)), False)
sketch3.addGeometry(Part.LineSegment(App.Vector(-1, -2.3, 0), App.Vector(-1, -1, 0)), False)
sketch3.addGeometry(Part.LineSegment(App.Vector(-1, -1, 0), App.Vector(-2.3, -1, 0)), False)
sketch3.addConstraint(Sketcher.Constraint("Coincident", 0, 2, 1, 1))
sketch3.addConstraint(Sketcher.Constraint("Coincident", 1, 2, 2, 1))
sketch3.addConstraint(Sketcher.Constraint("Coincident", 2, 2, 0, 1))
sketch3.addConstraint(Sketcher.Constraint("Coincident", 3, 2, 4, 1))
sketch3.addConstraint(Sketcher.Constraint("Coincident", 4, 2, 5, 1))
sketch3.addConstraint(Sketcher.Constraint("Coincident", 5, 2, 3, 1))
sketch3.addConstraint(Sketcher.Constraint("Coincident", 6, 2, 7, 1))
sketch3.addConstraint(Sketcher.Constraint("Coincident", 7, 2, 8, 1))
sketch3.addConstraint(Sketcher.Constraint("Coincident", 8, 2, 6, 1))
sketch3.addConstraint(Sketcher.Constraint("Coincident", 9, 2, 10, 1))
sketch3.addConstraint(Sketcher.Constraint("Coincident", 10, 2, 11, 1))
sketch3.addConstraint(Sketcher.Constraint("Coincident", 11, 2, 9, 1))
sketch3.addConstraint(Sketcher.Constraint("Vertical", 0))
sketch3.addConstraint(Sketcher.Constraint("Horizontal", 2))
sketch3.addConstraint(Sketcher.Constraint("Horizontal", 3))
sketch3.addConstraint(Sketcher.Constraint("Vertical", 5))
sketch3.addConstraint(Sketcher.Constraint("Horizontal", 7))
sketch3.addConstraint(Sketcher.Constraint("Vertical", 8))
sketch3.addConstraint(Sketcher.Constraint("Vertical", 10))
sketch3.addConstraint(Sketcher.Constraint("Horizontal", 11))
sketch3.addConstraint(Sketcher.Constraint("Coincident", 1, 3, -1, 1))
sketch3.addConstraint(Sketcher.Constraint("Coincident", 4, 3, -1, 1))
sketch3.addConstraint(Sketcher.Constraint("Coincident", 6, 3, -1, 1))
sketch3.addConstraint(Sketcher.Constraint("Coincident", 9, 3, -1, 1))
sketch3.addConstraint(Sketcher.Constraint("Equal", 1, 4))
sketch3.addConstraint(Sketcher.Constraint("Equal", 4, 6))
sketch3.addConstraint(Sketcher.Constraint("Equal", 6, 9))
sketch3.addConstraint(Sketcher.Constraint("Symmetric", 2, 2, 7, 2, -1, 1))
sketch3.addConstraint(Sketcher.Constraint("Symmetric", 5, 2, 10, 2, -1, 1))
sketch3.addConstraint(Sketcher.Constraint("Symmetric", 2, 2, 5, 2, -2))
sketch3.addConstraint(Sketcher.Constraint("Equal", 11, 0))
sketch3.addConstraint(Sketcher.Constraint("Radius", 1, Q("2.500001 mm")))
sketch3.addConstraint(Sketcher.Constraint("DistanceX", 0, 2, -1, 1, Q("1 mm")))
pad3 = body.newObject("PartDesign::Pad", "Pad002")
pad3.Profile = sketch3
pad3.Length = 7.5
pad3.Midplane = True
doc.recompute()

fillet2 = body.newObject("PartDesign::Fillet", "Fillet001")
fillet2.Base = (pad3, edges_at(pad3, [
    (-1, -3.75, 1.646),
    (-1.646, -3.75, 1),
    (-1.646, -3.75, -1),
    (-1, -3.75, -1.646),
    (1, -3.75, 1.646),
    (1.646, -3.75, 1),
    (1.646, -3.75, -1),
    (1, -3.75, -1.646),
    (1.646, 3.75, 1),
    (1, 3.75, 1.646),
    (-1, 3.75, 1.646),
    (-1.646, 3.75, 1),
    (-1.646, 3.75, -1),
    (-1, 3.75, -1.646),
    (1, 3.75, -1.646),
    (1.646, 3.75, -1),
]))
fillet2.Radius = 0.5

doc.recompute()
